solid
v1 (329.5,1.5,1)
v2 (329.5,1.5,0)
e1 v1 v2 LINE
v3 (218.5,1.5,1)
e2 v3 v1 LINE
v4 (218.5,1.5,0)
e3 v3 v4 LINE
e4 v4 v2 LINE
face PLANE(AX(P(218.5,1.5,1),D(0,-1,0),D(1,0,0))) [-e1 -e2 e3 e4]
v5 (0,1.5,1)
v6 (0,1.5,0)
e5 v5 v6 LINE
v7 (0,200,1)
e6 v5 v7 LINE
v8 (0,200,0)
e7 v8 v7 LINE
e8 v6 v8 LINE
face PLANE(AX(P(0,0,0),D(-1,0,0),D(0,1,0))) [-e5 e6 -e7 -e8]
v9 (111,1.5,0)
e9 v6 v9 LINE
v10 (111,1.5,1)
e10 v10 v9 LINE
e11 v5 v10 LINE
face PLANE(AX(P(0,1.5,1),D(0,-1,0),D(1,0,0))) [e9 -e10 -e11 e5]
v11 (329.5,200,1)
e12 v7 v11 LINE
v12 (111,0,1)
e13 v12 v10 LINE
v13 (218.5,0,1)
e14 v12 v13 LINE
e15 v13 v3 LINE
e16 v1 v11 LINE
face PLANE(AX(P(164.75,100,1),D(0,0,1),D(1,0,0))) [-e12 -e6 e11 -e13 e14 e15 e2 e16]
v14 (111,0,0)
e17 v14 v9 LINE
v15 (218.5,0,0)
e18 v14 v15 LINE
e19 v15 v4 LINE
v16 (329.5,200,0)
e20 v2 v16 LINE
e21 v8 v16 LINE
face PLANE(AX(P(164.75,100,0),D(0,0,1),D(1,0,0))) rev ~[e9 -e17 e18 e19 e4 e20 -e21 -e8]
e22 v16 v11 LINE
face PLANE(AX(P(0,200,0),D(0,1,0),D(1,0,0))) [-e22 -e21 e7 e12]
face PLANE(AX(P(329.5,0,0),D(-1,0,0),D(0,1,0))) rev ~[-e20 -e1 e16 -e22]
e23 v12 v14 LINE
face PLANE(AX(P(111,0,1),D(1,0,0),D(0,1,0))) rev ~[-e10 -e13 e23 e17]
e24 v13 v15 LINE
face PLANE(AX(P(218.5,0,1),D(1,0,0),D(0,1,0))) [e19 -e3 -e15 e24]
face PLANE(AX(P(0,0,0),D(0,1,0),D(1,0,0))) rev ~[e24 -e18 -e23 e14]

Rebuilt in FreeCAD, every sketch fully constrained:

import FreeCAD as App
import Part
import Sketcher
from FreeCAD import Vector


def add_polygon(sketch, points):
    """Adds a closed chain of lines whose ends are joined by coincident constraints."""
    first, n = sketch.GeometryCount, len(points)
    for a, b in zip(points, points[1:] + points[:1]):
        sketch.addGeometry(Part.LineSegment(App.Vector(*a, 0), App.Vector(*b, 0)), False)
    for i in range(n):
        sketch.addConstraint(Sketcher.Constraint("Coincident", first + i, 2, first + (i + 1) % n, 1))

doc = App.newDocument("Part")
body = doc.addObject("PartDesign::Body", "Body")

# Sketch on XY plane
sketch1 = body.newObject("Sketcher::SketchObject", "Sketch")
sketch1.AttachmentSupport = (doc.getObject("XY_Plane"), [""])
sketch1.MapMode = "FlatFace"
add_polygon(sketch1, [(0, 200), (0, 0), (329.5, 0), (329.5, 200)])  # lines 0-3
sketch1.addConstraint([
    Sketcher.Constraint("Vertical", 0),
    Sketcher.Constraint("Horizontal", 1),
    Sketcher.Constraint("Vertical", 2),
    Sketcher.Constraint("Horizontal", 3),
    Sketcher.Constraint("Coincident", 0, 2, -1, 1),
    Sketcher.Constraint("DistanceY", 0, 2, 0, 1, 200.0),
    Sketcher.Constraint("DistanceX", 1, 1, 1, 2, 329.5),
])
pad1 = body.newObject("PartDesign::Pad", "Pad")
pad1.Profile = sketch1
pad1.Length = 1

# Sketch on XY plane
sketch2 = body.newObject("Sketcher::SketchObject", "Sketch001")
sketch2.AttachmentSupport = (doc.getObject("XY_Plane"), [""])
sketch2.MapMode = "FlatFace"
sketch2.AttachmentOffset = App.Placement(Vector(0, 0, 1), App.Rotation())
add_polygon(sketch2, [(0, 1.5), (0, 0), (111, 0), (111, 1.5)])  # lines 0-3
add_polygon(sketch2, [(218.5, 1.5), (218.5, 0), (329.5, 0), (329.5, 1.5)])  # lines 4-7
sketch2.addConstraint([
    Sketcher.Constraint("Vertical", 0),
    Sketcher.Constraint("Horizontal", 1),
    Sketcher.Constraint("Vertical", 2),
    Sketcher.Constraint("Horizontal", 3),
    Sketcher.Constraint("Vertical", 4),
    Sketcher.Constraint("Horizontal", 5),
    Sketcher.Constraint("Vertical", 6),
    Sketcher.Constraint("Horizontal", 7),
    Sketcher.Constraint("Coincident", 0, 2, -1, 1),
    Sketcher.Constraint("PointOnObject", 4, 2, -1),
    Sketcher.Constraint("Horizontal", 3, 2, 6, 2),
    Sketcher.Constraint("Equal", 3, 5),
    Sketcher.Constraint("DistanceX", 1, 1, 1, 2, 111.0),
    Sketcher.Constraint("DistanceY", 0, 2, 0, 1, 1.5),
    Sketcher.Constraint("DistanceX", -1, 1, 4, 2, 218.5),
])
pocket1 = body.newObject("PartDesign::Pocket", "Pocket")
pocket1.Profile = sketch2
pocket1.Type = "ThroughAll"

doc.recompute()
